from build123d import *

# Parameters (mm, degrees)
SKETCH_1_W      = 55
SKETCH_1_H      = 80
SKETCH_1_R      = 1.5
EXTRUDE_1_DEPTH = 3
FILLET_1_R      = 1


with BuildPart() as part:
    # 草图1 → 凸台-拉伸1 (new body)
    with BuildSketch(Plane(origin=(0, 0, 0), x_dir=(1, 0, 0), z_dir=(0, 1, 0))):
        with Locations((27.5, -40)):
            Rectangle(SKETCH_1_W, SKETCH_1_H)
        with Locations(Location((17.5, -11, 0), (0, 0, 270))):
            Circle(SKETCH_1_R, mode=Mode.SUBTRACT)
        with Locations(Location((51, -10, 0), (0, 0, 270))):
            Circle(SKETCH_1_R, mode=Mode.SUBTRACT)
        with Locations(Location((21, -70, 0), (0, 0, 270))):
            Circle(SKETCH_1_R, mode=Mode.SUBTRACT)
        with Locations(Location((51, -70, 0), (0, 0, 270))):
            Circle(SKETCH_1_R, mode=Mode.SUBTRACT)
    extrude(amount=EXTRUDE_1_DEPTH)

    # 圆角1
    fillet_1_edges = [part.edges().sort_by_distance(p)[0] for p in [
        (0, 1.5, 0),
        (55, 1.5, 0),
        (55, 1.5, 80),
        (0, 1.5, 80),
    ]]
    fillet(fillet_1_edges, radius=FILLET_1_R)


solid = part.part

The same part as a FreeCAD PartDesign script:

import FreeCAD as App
import Part
import Sketcher

V = App.Vector
Q = App.Units.Quantity


def edges_at(feature, points):
    """Names of the edges that pass closest to the given points."""
    edges = feature.Shape.Edges
    near = lambda p: min(range(len(edges)), key=lambda i: edges[i].distToShape(Part.Vertex(*p))[0])
    return sorted({f"Edge{near(p) + 1}" for p in points})

doc = App.newDocument("Part")
body = doc.addObject("PartDesign::Body", "Body")

# Sketch on XZ plane
sketch1 = doc.addObject("Sketcher::SketchObject", "Sketch")
body.addObject(sketch1)
sketch1.AttachmentSupport = (doc.XZ_Plane, [""])
sketch1.MapMode = "FlatFace"
sketch1.addGeometry([
    Part.LineSegment(V(0, 0, 0), V(0, 80, 0)),  # 0
    Part.LineSegment(V(0, 80, 0), V(55, 80, 0)),  # 1
    Part.LineSegment(V(55, 80, 0), V(55, 0, 0)),  # 2
    Part.LineSegment(V(55, 0, 0), V(0, 0, 0)),  # 3
    Part.Circle(V(21, 70, 0), V(0, 0, 1), 1.5),  # 4
    Part.Circle(V(51, 70, 0), V(0, 0, 1), 1.5),  # 5
    Part.Circle(V(17.5, 11, 0), V(0, 0, 1), 1.5),  # 6
    Part.Circle(V(51, 10, 0), V(0, 0, 1), 1.5),  # 7
], False)
sketch1.addConstraint([
    Sketcher.Constraint("Coincident", 0, 2, 1, 1),
    Sketcher.Constraint("Coincident", 1, 2, 2, 1),
    Sketcher.Constraint("Coincident", 2, 2, 3, 1),
    Sketcher.Constraint("Coincident", 3, 2, 0, 1),
    Sketcher.Constraint("Vertical", 0),
    Sketcher.Constraint("Horizontal", 1),
    Sketcher.Constraint("Vertical", 2),
    Sketcher.Constraint("Horizontal", 3),
    Sketcher.Constraint("Coincident", 3, 2, -1, 1),
    Sketcher.Constraint("Equal", 4, 5),
    Sketcher.Constraint("Equal", 5, 6),
    Sketcher.Constraint("Equal", 6, 7),
    Sketcher.Constraint("Horizontal", 4, 3, 5, 3),
    Sketcher.Constraint("Vertical", 5, 3, 7, 3),
    Sketcher.Constraint("Diameter", 4, Q("3 mm")),
    Sketcher.Constraint("DistanceX", 1, 1, 1, 2, Q("55 mm")),
    Sketcher.Constraint("DistanceY", 0, 1, 0, 2, Q("80 mm")),
    Sketcher.Constraint("DistanceX", -1, 1, 4, 3, Q("21 mm")),
    Sketcher.Constraint("DistanceY", -1, 1, 4, 3, Q("70 mm")),
    Sketcher.Constraint("DistanceX", -1, 1, 5, 3, Q("51 mm")),
    Sketcher.Constraint("DistanceY", -1, 1, 6, 3, Q("11 mm")),
    Sketcher.Constraint("DistanceY", -1, 1, 7, 3, Q("10 mm")),
    Sketcher.Constraint("DistanceX", -1, 1, 6, 3, Q("17.5 mm")),
])
pad1 = doc.addObject("PartDesign::Pad", "Pad")
body.addObject(pad1)
pad1.Profile = sketch1
pad1.Length = 3
pad1.Reversed = True
doc.recompute()

fillet = doc.addObject("PartDesign::Fillet", "Fillet")
body.addObject(fillet)
fillet.Base = (pad1, edges_at(pad1, [
    (0, 1.5, 0),
    (55, 1.5, 0),
    (55, 1.5, 80),
    (0, 1.5, 80),
]))
fillet.Radius = 1

doc.recompute()
